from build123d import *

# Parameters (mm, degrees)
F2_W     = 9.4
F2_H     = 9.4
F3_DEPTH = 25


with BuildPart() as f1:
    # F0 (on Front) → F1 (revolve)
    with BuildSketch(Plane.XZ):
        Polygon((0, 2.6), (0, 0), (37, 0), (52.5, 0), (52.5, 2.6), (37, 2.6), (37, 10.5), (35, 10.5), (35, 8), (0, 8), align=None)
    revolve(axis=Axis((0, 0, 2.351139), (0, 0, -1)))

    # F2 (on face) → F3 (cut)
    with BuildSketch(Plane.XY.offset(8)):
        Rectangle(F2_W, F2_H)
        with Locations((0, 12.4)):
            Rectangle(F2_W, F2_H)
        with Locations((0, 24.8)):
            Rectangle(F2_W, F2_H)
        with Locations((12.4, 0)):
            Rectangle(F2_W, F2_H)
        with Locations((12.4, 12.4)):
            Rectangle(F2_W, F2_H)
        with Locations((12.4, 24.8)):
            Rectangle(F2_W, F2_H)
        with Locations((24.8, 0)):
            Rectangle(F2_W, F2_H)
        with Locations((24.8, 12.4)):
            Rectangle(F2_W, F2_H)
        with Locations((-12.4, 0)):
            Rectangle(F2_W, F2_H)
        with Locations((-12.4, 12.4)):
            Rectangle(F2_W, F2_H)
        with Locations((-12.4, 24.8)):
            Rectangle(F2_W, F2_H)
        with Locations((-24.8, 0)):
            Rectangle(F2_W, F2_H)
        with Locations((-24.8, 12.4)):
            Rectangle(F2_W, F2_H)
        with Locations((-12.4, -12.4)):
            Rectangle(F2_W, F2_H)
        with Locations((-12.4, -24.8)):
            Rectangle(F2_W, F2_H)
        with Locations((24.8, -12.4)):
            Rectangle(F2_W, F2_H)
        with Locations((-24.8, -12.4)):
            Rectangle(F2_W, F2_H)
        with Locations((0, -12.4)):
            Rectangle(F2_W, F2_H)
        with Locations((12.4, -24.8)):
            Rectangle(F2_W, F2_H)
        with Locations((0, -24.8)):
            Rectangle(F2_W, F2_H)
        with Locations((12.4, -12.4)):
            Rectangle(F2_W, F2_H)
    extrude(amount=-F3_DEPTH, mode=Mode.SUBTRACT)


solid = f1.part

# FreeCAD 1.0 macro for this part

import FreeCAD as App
import Part
import Sketcher

V = App.Vector


def add_polygon(sketch, points):
    """Adds a closed chain of lines whose ends are joined by coincident constraints."""
    first, n = sketch.GeometryCount, len(points)
    for a, b in zip(points, points[1:] + points[:1]):
        sketch.addGeometry(Part.LineSegment(App.Vector(*a, 0), App.Vector(*b, 0)), False)
    for i in range(n):
        sketch.addConstraint(Sketcher.Constraint("Coincident", first + i, 2, first + (i + 1) % n, 1))

doc = App.newDocument("Part")
body = doc.addObject("PartDesign::Body", "Body")

sketch1 = body.newObject("Sketcher::SketchObject", "Sketch")
sketch1.AttachmentSupport = (doc.getObject("XZ_Plane"), [""])
sketch1.MapMode = "FlatFace"
add_polygon(sketch1, [(0, 0), (52.5, 0), (52.5, 2.6), (37, 2.6), (37, 10.5), (35, 10.5), (35, 8), (0, 8)])
sketch1.addConstraint([
    Sketcher.Constraint("Horizontal", 0),
    Sketcher.Constraint("Vertical", 1),
    Sketcher.Constraint("Horizontal", 2),
    Sketcher.Constraint("Vertical", 3),
    Sketcher.Constraint("Horizontal", 4),
    Sketcher.Constraint("Vertical", 5),
    Sketcher.Constraint("Horizontal", 6),
    Sketcher.Constraint("Vertical", 7),
    Sketcher.Constraint("Coincident", 7, 2, -1, 1),
    Sketcher.Constraint("DistanceX", 4, 2, 4, 1, 2.0),
    Sketcher.Constraint("DistanceX", 6, 2, 6, 1, 35.0),
    Sketcher.Constraint("DistanceY", 7, 2, 7, 1, 8.0),
    Sketcher.Constraint("DistanceX", 0, 1, 0, 2, 52.5),
    Sketcher.Constraint("DistanceY", 1, 1, 1, 2, 2.6),
    Sketcher.Constraint("DistanceY", 3, 1, 3, 2, 7.9),
])
revolution = body.newObject("PartDesign::Revolution", "Revolution")
revolution.Profile = sketch1
revolution.ReferenceAxis = (sketch1, ["V_Axis"])
revolution.Angle = 360

sketch2 = body.newObject("Sketcher::SketchObject", "Sketch001")
sketch2.AttachmentSupport = (doc.getObject("XY_Plane"), [""])
sketch2.MapMode = "FlatFace"
sketch2.AttachmentOffset = App.Placement(V(0, 0, 8), App.Rotation())
add_polygon(sketch2, [(-4.7, 4.7), (-4.7, -4.7), (4.7, -4.7), (4.7, 4.7)])
add_polygon(sketch2, [(-4.7, 17.1), (-4.7, 7.7), (4.7, 7.7), (4.7, 17.1)])
add_polygon(sketch2, [(-4.7, 29.5), (-4.7, 20.1), (4.7, 20.1), (4.7, 29.5)])
add_polygon(sketch2, [(7.7, 4.7), (7.7, -4.7), (17.1, -4.7), (17.1, 4.7)])
add_polygon(sketch2, [(7.7, 17.1), (7.7, 7.7), (17.1, 7.7), (17.1, 17.1)])
add_polygon(sketch2, [(7.7, 29.5), (7.7, 20.1), (17.1, 20.1), (17.1, 29.5)])
add_polygon(sketch2, [(20.1, 4.7), (20.1, -4.7), (29.5, -4.7), (29.5, 4.7)])
add_polygon(sketch2, [(20.1, 17.1), (20.1, 7.7), (29.5, 7.7), (29.5, 17.1)])
add_polygon(sketch2, [(-17.1, 4.7), (-17.1, -4.7), (-7.7, -4.7), (-7.7, 4.7)])
add_polygon(sketch2, [(-17.1, 17.1), (-17.1, 7.7), (-7.7, 7.7), (-7.7, 17.1)])
add_polygon(sketch2, [(-17.1, 29.5), (-17.1, 20.1), (-7.7, 20.1), (-7.7, 29.5)])
add_polygon(sketch2, [(-29.5, 4.7), (-29.5, -4.7), (-20.1, -4.7), (-20.1, 4.7)])
add_polygon(sketch2, [(-29.5, 17.1), (-29.5, 7.7), (-20.1, 7.7), (-20.1, 17.1)])
add_polygon(sketch2, [(-17.1, -7.7), (-17.1, -17.1), (-7.7, -17.1), (-7.7, -7.7)])
add_polygon(sketch2, [(-17.1, -20.1), (-17.1, -29.5), (-7.7, -29.5), (-7.7, -20.1)])
add_polygon(sketch2, [(20.1, -7.7), (20.1, -17.1), (29.5, -17.1), (29.5, -7.7)])
add_polygon(sketch2, [(-29.5, -7.7), (-29.5, -17.1), (-20.1, -17.1), (-20.1, -7.7)])
add_polygon(sketch2, [(-4.7, -7.7), (-4.7, -17.1), (4.7, -17.1), (4.7, -7.7)])
add_polygon(sketch2, [(7.7, -20.1), (7.7, -29.5), (17.1, -29.5), (17.1, -20.1)])
add_polygon(sketch2, [(-4.7, -20.1), (-4.7, -29.5), (4.7, -29.5), (4.7, -20.1)])
add_polygon(sketch2, [(7.7, -7.7), (7.7, -17.1), (17.1, -17.1), (17.1, -7.7)])
sketch2.addConstraint([
    Sketcher.Constraint("Vertical", 0),
    Sketcher.Constraint("Horizontal", 1),
    Sketcher.Constraint("Vertical", 2),
    Sketcher.Constraint("Horizontal", 3),
    Sketcher.Constraint("Vertical", 4),
    Sketcher.Constraint("Horizontal", 5),
    Sketcher.Constraint("Vertical", 6),
    Sketcher.Constraint("Horizontal", 7),
    Sketcher.Constraint("Vertical", 8),
    Sketcher.Constraint("Horizontal", 9),
    Sketcher.Constraint("Vertical", 10),
    Sketcher.Constraint("Horizontal", 11),
    Sketcher.Constraint("Vertical", 12),
    Sketcher.Constraint("Horizontal", 13),
    Sketcher.Constraint("Vertical", 14),
    Sketcher.Constraint("Horizontal", 15),
    Sketcher.Constraint("Vertical", 16),
    Sketcher.Constraint("Horizontal", 17),
    Sketcher.Constraint("Vertical", 18),
    Sketcher.Constraint("Horizontal", 19),
    Sketcher.Constraint("Vertical", 20),
    Sketcher.Constraint("Horizontal", 21),
    Sketcher.Constraint("Vertical", 22),
    Sketcher.Constraint("Horizontal", 23),
    Sketcher.Constraint("Vertical", 24),
    Sketcher.Constraint("Horizontal", 25),
    Sketcher.Constraint("Vertical", 26),
    Sketcher.Constraint("Horizontal", 27),
    Sketcher.Constraint("Vertical", 28),
    Sketcher.Constraint("Horizontal", 29),
    Sketcher.Constraint("Vertical", 30),
    Sketcher.Constraint("Horizontal", 31),
    Sketcher.Constraint("Vertical", 32),
    Sketcher.Constraint("Horizontal", 33),
    Sketcher.Constraint("Vertical", 34),
    Sketcher.Constraint("Horizontal", 35),
    Sketcher.Constraint("Vertical", 36),
    Sketcher.Constraint("Horizontal", 37),
    Sketcher.Constraint("Vertical", 38),
    Sketcher.Constraint("Horizontal", 39),
    Sketcher.Constraint("Vertical", 40),
    Sketcher.Constraint("Horizontal", 41),
    Sketcher.Constraint("Vertical", 42),
    Sketcher.Constraint("Horizontal", 43),
    Sketcher.Constraint("Vertical", 44),
    Sketcher.Constraint("Horizontal", 45),
    Sketcher.Constraint("Vertical", 46),
    Sketcher.Constraint("Horizontal", 47),
    Sketcher.Constraint("Vertical", 48),
    Sketcher.Constraint("Horizontal", 49),
    Sketcher.Constraint("Vertical", 50),
    Sketcher.Constraint("Horizontal", 51),
    Sketcher.Constraint("Vertical", 52),
    Sketcher.Constraint("Horizontal", 53),
    Sketcher.Constraint("Vertical", 54),
    Sketcher.Constraint("Horizontal", 55),
    Sketcher.Constraint("Vertical", 56),
    Sketcher.Constraint("Horizontal", 57),
    Sketcher.Constraint("Vertical", 58),
    Sketcher.Constraint("Horizontal", 59),
    Sketcher.Constraint("Vertical", 60),
    Sketcher.Constraint("Horizontal", 61),
    Sketcher.Constraint("Vertical", 62),
    Sketcher.Constraint("Horizontal", 63),
    Sketcher.Constraint("Vertical", 64),
    Sketcher.Constraint("Horizontal", 65),
    Sketcher.Constraint("Vertical", 66),
    Sketcher.Constraint("Horizontal", 67),
    Sketcher.Constraint("Vertical", 68),
    Sketcher.Constraint("Horizontal", 69),
    Sketcher.Constraint("Vertical", 70),
    Sketcher.Constraint("Horizontal", 71),
    Sketcher.Constraint("Vertical", 72),
    Sketcher.Constraint("Horizontal", 73),
    Sketcher.Constraint("Vertical", 74),
    Sketcher.Constraint("Horizontal", 75),
    Sketcher.Constraint("Vertical", 76),
    Sketcher.Constraint("Horizontal", 77),
    Sketcher.Constraint("Vertical", 78),
    Sketcher.Constraint("Horizontal", 79),
    Sketcher.Constraint("Vertical", 80),
    Sketcher.Constraint("Horizontal", 81),
    Sketcher.Constraint("Vertical", 82),
    Sketcher.Constraint("Horizontal", 83),
    Sketcher.Constraint("Symmetric", 0, 2, 2, 2, -1, 1),
    Sketcher.Constraint("Symmetric", 14, 2, 32, 2, -1, 1),
    Sketcher.Constraint("Symmetric", 12, 2, 34, 2, -1, 1),
    Sketcher.Constraint("Symmetric", 26, 2, 44, 2, -1, 1),
    Sketcher.Constraint("Symmetric", 24, 2, 46, 2, -1, 1),
    Sketcher.Constraint("Symmetric", 18, 2, 52, 2, -1, 1),
    Sketcher.Constraint("Symmetric", 16, 2, 54, 2, -1, 1),
    Sketcher.Constraint("Symmetric", 22, 2, 56, 2, -1, 1),
    Sketcher.Constraint("Symmetric", 20, 2, 58, 2, -1, 1),
    Sketcher.Constraint("Symmetric", 50, 2, 60, 2, -1, 1),
    Sketcher.Constraint("Symmetric", 48, 2, 62, 2, -1, 1),
    Sketcher.Constraint("Symmetric", 30, 2, 64, 2, -1, 1),
    Sketcher.Constraint("Symmetric", 28, 2, 66, 2, -1, 1),
    Sketcher.Constraint("Symmetric", 6, 2, 68, 2, -1, 1),
    Sketcher.Constraint("Symmetric", 4, 2, 70, 2, -1, 1),
    Sketcher.Constraint("Symmetric", 42, 2, 72, 2, -1, 1),
    Sketcher.Constraint("Symmetric", 40, 2, 74, 2, -1, 1),
    Sketcher.Constraint("Symmetric", 10, 2, 76, 2, -1, 1),
    Sketcher.Constraint("Symmetric", 8, 2, 78, 2, -1, 1),
    Sketcher.Constraint("Symmetric", 38, 2, 80, 2, -1, 1),
    Sketcher.Constraint("Symmetric", 36, 2, 82, 2, -1, 1),
    Sketcher.Constraint("Symmetric", 17, 2, 36, 2, -2),
    Sketcher.Constraint("Symmetric", 19, 2, 38, 2, -2),
    Sketcher.Constraint("Symmetric", 21, 2, 40, 2, -2),
    Sketcher.Constraint("Symmetric", 23, 2, 42, 2, -2),
    Sketcher.Constraint("Symmetric", 29, 2, 48, 2, -2),
    Sketcher.Constraint("Symmetric", 31, 2, 50, 2, -2),
    Sketcher.Constraint("Horizontal", 1, 2, 12, 2),
    Sketcher.Constraint("Horizontal", 3, 2, 14, 2),
    Sketcher.Constraint("Horizontal", 5, 2, 16, 2),
    Sketcher.Constraint("Horizontal", 7, 2, 18, 2),
    Sketcher.Constraint("Horizontal", 9, 2, 20, 2),
    Sketcher.Constraint("Horizontal", 11, 2, 22, 2),
    Sketcher.Constraint("Horizontal", 13, 2, 24, 2),
    Sketcher.Constraint("Horizontal", 15, 2, 26, 2),
    Sketcher.Constraint("Horizontal", 17, 2, 28, 2),
    Sketcher.Constraint("Horizontal", 19, 2, 30, 2),
    Sketcher.Constraint("Vertical", 3, 2, 4, 2),
    Sketcher.Constraint("Vertical", 2, 2, 5, 2),
    Sketcher.Constraint("Vertical", 7, 2, 8, 2),
    Sketcher.Constraint("Vertical", 6, 2, 9, 2),
    Sketcher.Constraint("Vertical", 15, 2, 16, 2),
    Sketcher.Constraint("Vertical", 14, 2, 17, 2),
    Sketcher.Constraint("Vertical", 19, 2, 20, 2),
    Sketcher.Constraint("Vertical", 18, 2, 21, 2),
    Sketcher.Constraint("Vertical", 27, 2, 28, 2),
    Sketcher.Constraint("Vertical", 26, 2, 29, 2),
    Sketcher.Constraint("Equal", 11, 13),
    Sketcher.Constraint("Equal", 23, 25),
    Sketcher.Constraint("Equal", 83, 0),
    Sketcher.Constraint("Equal", 2, 4),
    Sketcher.Constraint("Equal", 6, 8),
    Sketcher.Constraint("DistanceX", 1, 1, 1, 2, 9.4),
    Sketcher.Constraint("DistanceY", -1, 1, 4, 2, 7.7),
    Sketcher.Constraint("DistanceY", -1, 1, 8, 2, 20.1),
    Sketcher.Constraint("DistanceX", -1, 1, 12, 2, 7.7),
    Sketcher.Constraint("DistanceX", -1, 1, 24, 2, 20.1),
])
pocket1 = body.newObject("PartDesign::Pocket", "Pocket")
pocket1.Profile = sketch2
pocket1.Length = 25

doc.recompute()
